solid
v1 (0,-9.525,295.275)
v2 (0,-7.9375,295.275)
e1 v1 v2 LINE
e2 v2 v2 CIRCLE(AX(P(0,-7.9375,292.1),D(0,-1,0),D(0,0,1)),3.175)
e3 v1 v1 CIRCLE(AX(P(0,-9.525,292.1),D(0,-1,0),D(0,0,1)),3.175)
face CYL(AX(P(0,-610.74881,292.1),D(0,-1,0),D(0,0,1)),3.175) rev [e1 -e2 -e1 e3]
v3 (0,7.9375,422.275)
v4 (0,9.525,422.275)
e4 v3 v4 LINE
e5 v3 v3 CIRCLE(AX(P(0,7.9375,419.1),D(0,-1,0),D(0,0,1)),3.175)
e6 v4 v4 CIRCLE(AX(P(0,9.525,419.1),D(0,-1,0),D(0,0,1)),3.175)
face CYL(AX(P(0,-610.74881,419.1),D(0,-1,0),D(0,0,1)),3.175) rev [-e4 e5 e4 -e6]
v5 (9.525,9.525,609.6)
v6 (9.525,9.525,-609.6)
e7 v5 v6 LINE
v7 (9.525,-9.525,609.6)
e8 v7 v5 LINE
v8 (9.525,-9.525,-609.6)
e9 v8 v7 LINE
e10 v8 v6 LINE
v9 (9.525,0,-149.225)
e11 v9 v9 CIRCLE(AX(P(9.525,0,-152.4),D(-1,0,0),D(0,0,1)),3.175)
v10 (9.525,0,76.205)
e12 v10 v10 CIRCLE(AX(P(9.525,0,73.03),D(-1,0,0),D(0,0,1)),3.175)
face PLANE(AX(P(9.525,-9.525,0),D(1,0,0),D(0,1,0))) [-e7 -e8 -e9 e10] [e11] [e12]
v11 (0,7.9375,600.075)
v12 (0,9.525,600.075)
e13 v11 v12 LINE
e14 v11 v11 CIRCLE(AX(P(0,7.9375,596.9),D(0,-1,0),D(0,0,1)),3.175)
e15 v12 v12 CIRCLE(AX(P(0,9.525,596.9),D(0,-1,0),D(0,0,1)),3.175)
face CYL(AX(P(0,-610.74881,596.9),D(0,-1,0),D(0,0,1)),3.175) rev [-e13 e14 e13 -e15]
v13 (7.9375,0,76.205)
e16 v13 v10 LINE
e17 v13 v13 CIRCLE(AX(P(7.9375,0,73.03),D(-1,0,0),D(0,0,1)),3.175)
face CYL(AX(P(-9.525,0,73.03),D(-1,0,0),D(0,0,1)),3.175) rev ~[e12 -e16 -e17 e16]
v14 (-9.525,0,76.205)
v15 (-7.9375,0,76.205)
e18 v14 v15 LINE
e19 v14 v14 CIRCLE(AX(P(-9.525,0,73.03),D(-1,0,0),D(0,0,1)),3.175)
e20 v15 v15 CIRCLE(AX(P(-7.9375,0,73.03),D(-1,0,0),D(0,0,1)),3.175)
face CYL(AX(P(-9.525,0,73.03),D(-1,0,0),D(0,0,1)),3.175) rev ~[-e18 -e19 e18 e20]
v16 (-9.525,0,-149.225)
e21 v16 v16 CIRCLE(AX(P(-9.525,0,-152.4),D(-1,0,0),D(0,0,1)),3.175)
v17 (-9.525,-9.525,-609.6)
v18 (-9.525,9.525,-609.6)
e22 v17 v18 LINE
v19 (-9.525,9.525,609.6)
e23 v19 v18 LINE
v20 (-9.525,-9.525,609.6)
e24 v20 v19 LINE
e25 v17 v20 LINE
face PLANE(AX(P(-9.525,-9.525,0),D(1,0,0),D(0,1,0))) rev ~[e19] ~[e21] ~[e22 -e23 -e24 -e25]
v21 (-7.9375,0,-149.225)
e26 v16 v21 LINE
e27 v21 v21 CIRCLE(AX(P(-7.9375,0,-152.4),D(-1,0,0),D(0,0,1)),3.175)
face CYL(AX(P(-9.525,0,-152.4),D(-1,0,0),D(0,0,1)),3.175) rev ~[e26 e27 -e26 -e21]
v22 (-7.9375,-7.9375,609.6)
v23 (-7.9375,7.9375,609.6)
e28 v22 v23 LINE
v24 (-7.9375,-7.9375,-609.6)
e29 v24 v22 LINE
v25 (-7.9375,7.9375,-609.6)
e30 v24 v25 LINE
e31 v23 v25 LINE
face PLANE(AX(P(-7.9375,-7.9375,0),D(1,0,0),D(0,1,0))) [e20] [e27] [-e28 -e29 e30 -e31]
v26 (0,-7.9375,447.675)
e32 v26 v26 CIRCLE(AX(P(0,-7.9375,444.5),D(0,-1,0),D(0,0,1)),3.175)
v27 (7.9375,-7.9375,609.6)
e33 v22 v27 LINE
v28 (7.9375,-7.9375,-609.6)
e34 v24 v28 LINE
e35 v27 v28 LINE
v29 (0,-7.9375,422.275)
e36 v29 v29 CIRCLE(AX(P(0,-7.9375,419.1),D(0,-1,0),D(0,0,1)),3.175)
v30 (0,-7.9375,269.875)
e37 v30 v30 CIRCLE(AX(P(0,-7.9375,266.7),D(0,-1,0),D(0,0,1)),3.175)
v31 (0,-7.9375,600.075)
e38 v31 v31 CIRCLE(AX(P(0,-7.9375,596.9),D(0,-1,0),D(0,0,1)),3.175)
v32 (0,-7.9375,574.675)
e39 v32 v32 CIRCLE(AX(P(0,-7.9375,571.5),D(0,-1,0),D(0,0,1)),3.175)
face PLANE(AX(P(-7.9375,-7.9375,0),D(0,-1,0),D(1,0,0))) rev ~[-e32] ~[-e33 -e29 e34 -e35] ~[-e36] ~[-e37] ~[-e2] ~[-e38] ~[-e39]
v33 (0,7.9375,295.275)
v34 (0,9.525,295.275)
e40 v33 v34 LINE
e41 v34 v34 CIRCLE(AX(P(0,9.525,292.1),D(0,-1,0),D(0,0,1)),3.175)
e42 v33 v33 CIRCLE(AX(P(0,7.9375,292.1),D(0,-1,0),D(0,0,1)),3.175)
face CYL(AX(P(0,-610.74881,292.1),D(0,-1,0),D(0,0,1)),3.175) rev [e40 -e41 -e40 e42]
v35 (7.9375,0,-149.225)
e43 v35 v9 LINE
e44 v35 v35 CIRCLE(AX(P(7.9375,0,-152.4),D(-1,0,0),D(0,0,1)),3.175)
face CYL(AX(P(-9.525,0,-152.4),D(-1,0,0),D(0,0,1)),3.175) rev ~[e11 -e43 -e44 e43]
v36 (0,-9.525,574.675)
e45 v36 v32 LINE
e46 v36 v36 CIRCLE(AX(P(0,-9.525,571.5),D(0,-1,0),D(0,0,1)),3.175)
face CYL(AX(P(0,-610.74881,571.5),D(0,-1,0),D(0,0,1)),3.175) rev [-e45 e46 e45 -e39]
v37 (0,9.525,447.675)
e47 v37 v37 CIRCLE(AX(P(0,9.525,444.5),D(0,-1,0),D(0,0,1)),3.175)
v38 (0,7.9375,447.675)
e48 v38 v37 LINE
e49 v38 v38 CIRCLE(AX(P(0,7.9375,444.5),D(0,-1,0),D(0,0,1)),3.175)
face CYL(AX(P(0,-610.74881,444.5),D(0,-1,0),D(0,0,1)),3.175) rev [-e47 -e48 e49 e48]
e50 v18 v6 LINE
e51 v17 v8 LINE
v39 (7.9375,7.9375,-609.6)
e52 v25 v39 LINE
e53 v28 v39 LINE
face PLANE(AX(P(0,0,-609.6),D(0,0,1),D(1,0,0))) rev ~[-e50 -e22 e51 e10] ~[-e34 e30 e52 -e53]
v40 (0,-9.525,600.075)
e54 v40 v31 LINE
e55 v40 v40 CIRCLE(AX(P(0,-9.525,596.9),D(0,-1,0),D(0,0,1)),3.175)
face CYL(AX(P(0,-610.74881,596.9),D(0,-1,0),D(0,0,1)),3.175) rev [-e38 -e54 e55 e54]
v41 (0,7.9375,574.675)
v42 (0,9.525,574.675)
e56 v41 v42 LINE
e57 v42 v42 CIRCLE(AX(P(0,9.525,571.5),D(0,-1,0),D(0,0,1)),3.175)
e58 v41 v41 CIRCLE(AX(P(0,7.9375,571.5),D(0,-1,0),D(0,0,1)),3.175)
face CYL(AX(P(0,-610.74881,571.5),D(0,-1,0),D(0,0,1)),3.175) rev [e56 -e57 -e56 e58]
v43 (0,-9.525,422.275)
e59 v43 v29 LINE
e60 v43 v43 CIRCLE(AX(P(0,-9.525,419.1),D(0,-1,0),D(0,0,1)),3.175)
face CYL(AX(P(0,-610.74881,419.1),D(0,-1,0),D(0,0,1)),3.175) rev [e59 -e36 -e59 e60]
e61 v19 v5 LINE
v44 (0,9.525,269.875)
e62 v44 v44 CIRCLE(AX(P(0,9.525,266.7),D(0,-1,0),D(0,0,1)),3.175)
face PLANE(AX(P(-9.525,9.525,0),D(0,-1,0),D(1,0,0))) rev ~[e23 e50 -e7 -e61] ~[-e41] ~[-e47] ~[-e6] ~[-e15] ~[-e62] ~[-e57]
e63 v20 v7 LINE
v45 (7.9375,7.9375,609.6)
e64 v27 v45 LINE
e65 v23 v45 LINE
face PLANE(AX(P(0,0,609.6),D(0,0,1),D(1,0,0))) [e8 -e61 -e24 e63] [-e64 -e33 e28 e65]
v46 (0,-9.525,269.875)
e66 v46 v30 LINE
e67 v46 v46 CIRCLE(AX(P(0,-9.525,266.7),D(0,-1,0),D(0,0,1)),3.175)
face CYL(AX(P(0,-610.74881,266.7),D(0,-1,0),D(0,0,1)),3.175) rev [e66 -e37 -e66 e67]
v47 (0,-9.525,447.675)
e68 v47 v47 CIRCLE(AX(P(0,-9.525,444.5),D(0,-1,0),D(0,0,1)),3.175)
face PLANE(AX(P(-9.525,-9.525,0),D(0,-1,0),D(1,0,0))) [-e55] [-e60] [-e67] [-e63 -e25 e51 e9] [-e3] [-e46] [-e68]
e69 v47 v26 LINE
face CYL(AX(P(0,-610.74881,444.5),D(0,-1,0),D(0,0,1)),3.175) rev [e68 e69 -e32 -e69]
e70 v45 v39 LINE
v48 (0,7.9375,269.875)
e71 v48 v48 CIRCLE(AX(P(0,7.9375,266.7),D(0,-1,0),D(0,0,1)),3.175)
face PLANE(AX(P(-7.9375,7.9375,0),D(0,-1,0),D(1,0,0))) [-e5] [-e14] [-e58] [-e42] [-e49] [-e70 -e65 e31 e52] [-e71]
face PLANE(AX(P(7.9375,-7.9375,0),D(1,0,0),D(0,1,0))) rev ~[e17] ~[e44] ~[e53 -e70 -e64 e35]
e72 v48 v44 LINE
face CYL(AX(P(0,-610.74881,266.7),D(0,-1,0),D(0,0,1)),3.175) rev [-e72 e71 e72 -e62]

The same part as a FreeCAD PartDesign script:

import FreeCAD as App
import Part
import Sketcher

V = App.Vector
Q = App.Units.Quantity

doc = App.newDocument("Part")
body = doc.addObject("PartDesign::Body", "Body")

# Sketch on XY plane
sketch1 = body.newObject("Sketcher::SketchObject", "Sketch")
sketch1.AttachmentSupport = (doc.getObject("XY_Plane"), [""])
sketch1.MapMode = "FlatFace"
sketch1.addGeometry([
    Part.LineSegment(V(-10, 10, 0), V(-10, -10, 0)),  # 0
    Part.LineSegment(V(-10, -10, 0), V(10, -10, 0)),  # 1
    Part.LineSegment(V(10, -10, 0), V(10, 10, 0)),  # 2
    Part.LineSegment(V(10, 10, 0), V(-10, 10, 0)),  # 3
    Part.LineSegment(V(8, -8, 0), V(-8, -8, 0)),  # 4
    Part.LineSegment(V(-8, -8, 0), V(-8, 8, 0)),  # 5
    Part.LineSegment(V(-8, 8, 0), V(8, 8, 0)),  # 6
    Part.LineSegment(V(8, 8, 0), V(8, -8, 0)),  # 7
], False)
sketch1.addConstraint([
    Sketcher.Constraint("Coincident", 0, 2, 1, 1),
    Sketcher.Constraint("Coincident", 1, 2, 2, 1),
    Sketcher.Constraint("Coincident", 2, 2, 3, 1),
    Sketcher.Constraint("Coincident", 3, 2, 0, 1),
    Sketcher.Constraint("Coincident", 4, 2, 5, 1),
    Sketcher.Constraint("Coincident", 5, 2, 6, 1),
    Sketcher.Constraint("Coincident", 6, 2, 7, 1),
    Sketcher.Constraint("Coincident", 7, 2, 4, 1),
    Sketcher.Constraint("Vertical", 0),
    Sketcher.Constraint("Horizontal", 1),
    Sketcher.Constraint("Vertical", 2),
    Sketcher.Constraint("Horizontal", 3),
    Sketcher.Constraint("Horizontal", 4),
    Sketcher.Constraint("Vertical", 5),
    Sketcher.Constraint("Horizontal", 6),
    Sketcher.Constraint("Vertical", 7),
    Sketcher.Constraint("Symmetric", 0, 2, 2, 2, -1, 1),
    Sketcher.Constraint("Symmetric", 4, 2, 6, 2, -1, 1),
    Sketcher.Constraint("Equal", 3, 0),
    Sketcher.Constraint("Equal", 6, 5),
    Sketcher.Constraint("DistanceX", 1, 1, 1, 2, Q("0.75 in")),
    Sketcher.Constraint("DistanceX", 4, 2, 4, 1, Q("0.625 in")),
])
pad1 = body.newObject("PartDesign::Pad", "Pad")
pad1.Profile = sketch1
pad1.Length = Q("48 in")
pad1.Midplane = True

# Sketch on XZ plane
sketch2 = body.newObject("Sketcher::SketchObject", "Sketch001")
sketch2.AttachmentSupport = (doc.getObject("XZ_Plane"), [""])
sketch2.MapMode = "FlatFace"
sketch2.addGeometry([
    Part.Circle(V(0, 596.9, 0), V(0, 0, 1), 3.2),  # 0
    Part.Circle(V(0, 571.5, 0), V(0, 0, 1), 3.2),  # 1
    Part.Circle(V(0, 444.5, 0), V(0, 0, 1), 3.2),  # 2
    Part.Circle(V(0, 419.1, 0), V(0, 0, 1), 3.2),  # 3
    Part.Circle(V(0, 292.1, 0), V(0, 0, 1), 3.2),  # 4
    Part.Circle(V(0, 266.7, 0), V(0, 0, 1), 3.2),  # 5
], False)
sketch2.addConstraint([
    Sketcher.Constraint("Equal", 0, 1),
    Sketcher.Constraint("Equal", 1, 2),
    Sketcher.Constraint("Equal", 2, 3),
    Sketcher.Constraint("Equal", 3, 4),
    Sketcher.Constraint("Equal", 4, 5),
    Sketcher.Constraint("PointOnObject", 0, 3, -2),
    Sketcher.Constraint("PointOnObject", 1, 3, -2),
    Sketcher.Constraint("PointOnObject", 2, 3, -2),
    Sketcher.Constraint("PointOnObject", 3, 3, -2),
    Sketcher.Constraint("PointOnObject", 4, 3, -2),
    Sketcher.Constraint("PointOnObject", 5, 3, -2),
    Sketcher.Constraint("Diameter", 0, Q("0.25 in")),
    Sketcher.Constraint("DistanceY", 1, 3, 0, 3, Q("1 in")),
    Sketcher.Constraint("DistanceY", 2, 3, 1, 3, Q("5 in")),
    Sketcher.Constraint("DistanceY", 3, 3, 2, 3, Q("1 in")),
    Sketcher.Constraint("DistanceY", 4, 3, 3, 3, Q("5 in")),
    Sketcher.Constraint("DistanceY", 5, 3, 4, 3, Q("1 in")),
    Sketcher.Constraint("DistanceY", -1, 1, 0, 3, Q("23.5 in")),
])
pocket1 = body.newObject("PartDesign::Pocket", "Pocket")
pocket1.Profile = sketch2
pocket1.Type = "ThroughAll"
pocket1.Midplane = True

# Sketch on YZ plane
sketch3 = body.newObject("Sketcher::SketchObject", "Sketch002")
sketch3.AttachmentSupport = (doc.getObject("YZ_Plane"), [""])
sketch3.MapMode = "FlatFace"
sketch3.AttachmentOffset = App.Placement(V(0, 0, -0.375 * 25.4), App.Rotation())
sketch3.addGeometry([
    Part.Circle(V(0, -152.4, 0), V(0, 0, 1), 3.2),
    Part.Circle(V(0, 73, 0), V(0, 0, 1), 3.2),
], False)
sketch3.addConstraint([
    Sketcher.Constraint("Equal", 0, 1),
    Sketcher.Constraint("PointOnObject", 0, 3, -2),
    Sketcher.Constraint("PointOnObject", 1, 3, -2),
    Sketcher.Constraint("Diameter", 0, Q("0.25 in")),
    Sketcher.Constraint("DistanceY", 0, 3, -1, 1, Q("6 in")),
    Sketcher.Constraint("DistanceY", -1, 1, 1, 3, Q("73.03 mm")),
])
pocket2 = body.newObject("PartDesign::Pocket", "Pocket001")
pocket2.Profile = sketch3
pocket2.Type = "ThroughAll"
pocket2.Reversed = True

doc.recompute()
